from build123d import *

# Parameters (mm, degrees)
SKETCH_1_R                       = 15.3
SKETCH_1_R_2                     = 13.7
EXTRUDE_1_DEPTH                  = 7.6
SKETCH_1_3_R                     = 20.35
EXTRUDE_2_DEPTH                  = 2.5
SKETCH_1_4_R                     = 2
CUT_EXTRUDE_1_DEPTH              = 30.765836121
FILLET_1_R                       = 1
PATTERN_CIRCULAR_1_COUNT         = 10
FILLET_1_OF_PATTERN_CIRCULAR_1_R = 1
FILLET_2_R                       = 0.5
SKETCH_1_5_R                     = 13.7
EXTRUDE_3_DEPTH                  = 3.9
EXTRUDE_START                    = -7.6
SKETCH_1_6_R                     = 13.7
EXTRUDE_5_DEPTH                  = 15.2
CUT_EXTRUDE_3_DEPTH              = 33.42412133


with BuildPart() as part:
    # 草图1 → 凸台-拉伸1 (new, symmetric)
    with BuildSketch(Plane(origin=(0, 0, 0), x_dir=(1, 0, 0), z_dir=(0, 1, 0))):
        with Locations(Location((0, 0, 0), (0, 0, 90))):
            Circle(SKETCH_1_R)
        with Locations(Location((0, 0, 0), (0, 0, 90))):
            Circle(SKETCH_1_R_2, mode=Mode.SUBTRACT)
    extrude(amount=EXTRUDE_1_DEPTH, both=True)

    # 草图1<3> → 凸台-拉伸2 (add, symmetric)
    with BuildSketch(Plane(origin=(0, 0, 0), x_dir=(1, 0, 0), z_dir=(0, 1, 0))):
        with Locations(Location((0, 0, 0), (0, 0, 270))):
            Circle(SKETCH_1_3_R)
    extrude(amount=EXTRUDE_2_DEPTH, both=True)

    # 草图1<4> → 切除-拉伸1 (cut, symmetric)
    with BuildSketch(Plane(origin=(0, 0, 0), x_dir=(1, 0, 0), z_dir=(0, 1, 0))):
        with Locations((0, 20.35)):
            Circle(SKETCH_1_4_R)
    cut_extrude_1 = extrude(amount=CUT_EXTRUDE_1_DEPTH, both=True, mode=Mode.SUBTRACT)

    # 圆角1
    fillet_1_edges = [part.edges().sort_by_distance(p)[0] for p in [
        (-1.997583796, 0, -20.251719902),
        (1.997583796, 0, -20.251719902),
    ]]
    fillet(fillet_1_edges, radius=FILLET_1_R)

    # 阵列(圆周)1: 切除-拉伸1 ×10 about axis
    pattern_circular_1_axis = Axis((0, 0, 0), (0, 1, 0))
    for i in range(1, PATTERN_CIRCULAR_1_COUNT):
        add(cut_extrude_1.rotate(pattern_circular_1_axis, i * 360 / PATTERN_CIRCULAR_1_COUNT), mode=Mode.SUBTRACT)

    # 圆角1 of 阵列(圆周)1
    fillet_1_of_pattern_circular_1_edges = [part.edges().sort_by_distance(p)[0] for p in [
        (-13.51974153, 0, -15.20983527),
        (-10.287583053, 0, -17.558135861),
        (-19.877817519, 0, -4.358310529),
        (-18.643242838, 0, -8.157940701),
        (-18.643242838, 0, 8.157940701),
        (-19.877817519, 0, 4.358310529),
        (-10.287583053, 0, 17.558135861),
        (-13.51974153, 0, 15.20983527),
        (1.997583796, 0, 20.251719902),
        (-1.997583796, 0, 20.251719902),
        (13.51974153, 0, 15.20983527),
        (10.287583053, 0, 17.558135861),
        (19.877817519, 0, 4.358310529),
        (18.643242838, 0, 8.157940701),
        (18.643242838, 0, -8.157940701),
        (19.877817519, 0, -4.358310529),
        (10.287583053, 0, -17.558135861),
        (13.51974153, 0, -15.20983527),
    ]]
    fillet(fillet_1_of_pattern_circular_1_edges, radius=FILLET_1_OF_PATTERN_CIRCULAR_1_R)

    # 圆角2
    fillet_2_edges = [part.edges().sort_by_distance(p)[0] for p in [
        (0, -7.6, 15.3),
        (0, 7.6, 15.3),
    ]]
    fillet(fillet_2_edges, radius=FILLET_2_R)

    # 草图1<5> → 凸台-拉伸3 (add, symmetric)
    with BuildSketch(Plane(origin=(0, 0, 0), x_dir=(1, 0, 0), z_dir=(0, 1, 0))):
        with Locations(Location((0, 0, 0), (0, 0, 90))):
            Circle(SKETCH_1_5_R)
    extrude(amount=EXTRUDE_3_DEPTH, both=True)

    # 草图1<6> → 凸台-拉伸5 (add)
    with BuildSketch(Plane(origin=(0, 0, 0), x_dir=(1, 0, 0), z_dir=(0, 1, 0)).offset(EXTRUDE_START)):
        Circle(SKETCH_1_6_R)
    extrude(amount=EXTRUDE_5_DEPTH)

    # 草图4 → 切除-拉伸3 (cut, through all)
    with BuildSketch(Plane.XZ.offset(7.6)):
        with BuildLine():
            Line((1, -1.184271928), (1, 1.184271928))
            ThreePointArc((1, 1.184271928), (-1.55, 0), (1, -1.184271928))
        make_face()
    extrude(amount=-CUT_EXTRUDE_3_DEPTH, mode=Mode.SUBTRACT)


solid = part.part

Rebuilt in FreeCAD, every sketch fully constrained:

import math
import FreeCAD as App
import Part
import Sketcher
Q = App.Units.Quantity


def edges_at(feature, points):
    """Names of the edges that pass closest to the given points."""
    edges = feature.Shape.Edges
    near = lambda p: min(range(len(edges)), key=lambda i: edges[i].distToShape(Part.Vertex(*p))[0])
    return sorted({f"Edge{near(p) + 1}" for p in points})

doc = App.newDocument("Part")
body = doc.addObject("PartDesign::Body", "Body")

sketch1 = body.newObject("Sketcher::SketchObject", "Sketch")
sketch1.AttachmentSupport = (doc.getObject("XZ_Plane"), [""])
sketch1.MapMode = "FlatFace"
sketch1.addGeometry(Part.Circle(App.Vector(0, 0, 0), App.Vector(0, 0, 1), 15), False)
sketch1.addGeometry(Part.Circle(App.Vector(0, 0, 0), App.Vector(0, 0, 1), 14), False)
sketch1.addConstraint(Sketcher.Constraint("Coincident", 0, 3, -1, 1))
sketch1.addConstraint(Sketcher.Constraint("Coincident", 1, 3, -1, 1))
sketch1.addConstraint(Sketcher.Constraint("Diameter", 0, Q("30.6 mm")))
sketch1.addConstraint(Sketcher.Constraint("Diameter", 1, Q("27.4 mm")))
pad1 = body.newObject("PartDesign::Pad", "Pad")
pad1.Profile = sketch1
pad1.Length = 15.2
pad1.Midplane = True

sketch2 = body.newObject("Sketcher::SketchObject", "Sketch001")
sketch2.AttachmentSupport = (doc.getObject("XZ_Plane"), [""])
sketch2.MapMode = "FlatFace"
sketch2.addGeometry(Part.Circle(App.Vector(0, 0, 0), App.Vector(0, 0, 1), 20), False)
sketch2.addConstraint(Sketcher.Constraint("Coincident", 0, 3, -1, 1))
sketch2.addConstraint(Sketcher.Constraint("Diameter", 0, Q("40.7 mm")))
pad2 = body.newObject("PartDesign::Pad", "Pad001")
pad2.Profile = sketch2
pad2.Length = 5
pad2.Midplane = True

sketch3 = body.newObject("Sketcher::SketchObject", "Sketch002")
sketch3.AttachmentSupport = (doc.getObject("XZ_Plane"), [""])
sketch3.MapMode = "FlatFace"
sketch3.addGeometry(Part.Circle(App.Vector(0, -20.4, 0), App.Vector(0, 0, 1), 2), False)
sketch3.addConstraint(Sketcher.Constraint("PointOnObject", 0, 3, -2))
sketch3.addConstraint(Sketcher.Constraint("Diameter", 0, Q("4 mm")))
sketch3.addConstraint(Sketcher.Constraint("DistanceY", 0, 3, -1, 1, Q("20.35 mm")))
pocket1 = body.newObject("PartDesign::Pocket", "Pocket")
pocket1.Profile = sketch3
pocket1.Length = 61.531672
pocket1.Midplane = True
doc.recompute()

fillet = body.newObject("PartDesign::Fillet", "Fillet")
fillet.Base = (pocket1, edges_at(pocket1, [(-1.998, 0, -20.252), (1.998, 0, -20.252)]))
fillet.Radius = 1
doc.recompute()

polarpattern = body.newObject("PartDesign::PolarPattern", "PolarPattern")
polarpattern.Originals = [pocket1]
polarpattern.Axis = (doc.getObject("Y_Axis"), [""])
polarpattern.Angle = 360
polarpattern.Occurrences = 10
body.Tip = polarpattern
doc.recompute()

fillet2 = body.newObject("PartDesign::Fillet", "Fillet001")
fillet2.Base = (polarpattern, edges_at(polarpattern, [
    (-13.52, 0, -15.21),
    (-10.288, 0, -17.558),
    (-19.878, 0, -4.358),
    (-18.643, 0, -8.158),
    (-18.643, 0, 8.158),
    (-19.878, 0, 4.358),
    (-10.288, 0, 17.558),
    (-13.52, 0, 15.21),
    (1.998, 0, 20.252),
    (-1.998, 0, 20.252),
    (13.52, 0, 15.21),
    (10.288, 0, 17.558),
    (19.878, 0, 4.358),
    (18.643, 0, 8.158),
    (18.643, 0, -8.158),
    (19.878, 0, -4.358),
    (10.288, 0, -17.558),
    (13.52, 0, -15.21),
]))
fillet2.Radius = 1
doc.recompute()

fillet3 = body.newObject("PartDesign::Fillet", "Fillet002")
fillet3.Base = (fillet2, edges_at(fillet2, [(0, -7.6, 15.3), (0, 7.6, 15.3)]))
fillet3.Radius = 0.5

sketch4 = body.newObject("Sketcher::SketchObject", "Sketch003")
sketch4.AttachmentSupport = (doc.getObject("XZ_Plane"), [""])
sketch4.MapMode = "FlatFace"
sketch4.addGeometry(Part.Circle(App.Vector(0, 0, 0), App.Vector(0, 0, 1), 14), False)
sketch4.addConstraint(Sketcher.Constraint("Coincident", 0, 3, -1, 1))
sketch4.addConstraint(Sketcher.Constraint("Diameter", 0, Q("27.4 mm")))
pad3 = body.newObject("PartDesign::Pad", "Pad002")
pad3.Profile = sketch4
pad3.Length = 7.8
pad3.Midplane = True

sketch5 = body.newObject("Sketcher::SketchObject", "Sketch004")
sketch5.AttachmentSupport = (doc.getObject("XZ_Plane"), [""])
sketch5.MapMode = "FlatFace"
sketch5.AttachmentOffset = App.Placement(App.Vector(0, 0, 7.6), App.Rotation())
sketch5.addGeometry(Part.Circle(App.Vector(0, 0, 0), App.Vector(0, 0, 1), 14), False)
sketch5.addConstraint(Sketcher.Constraint("Coincident", 0, 3, -1, 1))
sketch5.addConstraint(Sketcher.Constraint("Diameter", 0, Q("27.4 mm")))
pad4 = body.newObject("PartDesign::Pad", "Pad003")
pad4.Profile = sketch5
pad4.Length = 15.2
pad4.Reversed = True

sketch6 = body.newObject("Sketcher::SketchObject", "Sketch005")
sketch6.AttachmentSupport = (doc.getObject("XZ_Plane"), [""])
sketch6.MapMode = "FlatFace"
sketch6.AttachmentOffset = App.Placement(App.Vector(0, 0, 7.6), App.Rotation())
sketch6.addGeometry(Part.LineSegment(App.Vector(1, -1.2, 0), App.Vector(1, 1.2, 0)), False)
sketch6.addGeometry(Part.ArcOfCircle(Part.Circle(App.Vector(0, 0, 0), App.Vector(0, 0, 1), 1.6), math.radians(50), math.radians(310)), False)
sketch6.addConstraint(Sketcher.Constraint("Coincident", 0, 1, 1, 2))
sketch6.addConstraint(Sketcher.Constraint("Coincident", 1, 1, 0, 2))
sketch6.addConstraint(Sketcher.Constraint("Vertical", 0))
sketch6.addConstraint(Sketcher.Constraint("Coincident", 1, 3, -1, 1))
sketch6.addConstraint(Sketcher.Constraint("Radius", 1, Q("1.55 mm")))
sketch6.addConstraint(Sketcher.Constraint("DistanceX", -1, 1, 0, 1, Q("1 mm")))
pocket2 = body.newObject("PartDesign::Pocket", "Pocket001")
pocket2.Profile = sketch6
pocket2.Type = "ThroughAll"

doc.recompute()
